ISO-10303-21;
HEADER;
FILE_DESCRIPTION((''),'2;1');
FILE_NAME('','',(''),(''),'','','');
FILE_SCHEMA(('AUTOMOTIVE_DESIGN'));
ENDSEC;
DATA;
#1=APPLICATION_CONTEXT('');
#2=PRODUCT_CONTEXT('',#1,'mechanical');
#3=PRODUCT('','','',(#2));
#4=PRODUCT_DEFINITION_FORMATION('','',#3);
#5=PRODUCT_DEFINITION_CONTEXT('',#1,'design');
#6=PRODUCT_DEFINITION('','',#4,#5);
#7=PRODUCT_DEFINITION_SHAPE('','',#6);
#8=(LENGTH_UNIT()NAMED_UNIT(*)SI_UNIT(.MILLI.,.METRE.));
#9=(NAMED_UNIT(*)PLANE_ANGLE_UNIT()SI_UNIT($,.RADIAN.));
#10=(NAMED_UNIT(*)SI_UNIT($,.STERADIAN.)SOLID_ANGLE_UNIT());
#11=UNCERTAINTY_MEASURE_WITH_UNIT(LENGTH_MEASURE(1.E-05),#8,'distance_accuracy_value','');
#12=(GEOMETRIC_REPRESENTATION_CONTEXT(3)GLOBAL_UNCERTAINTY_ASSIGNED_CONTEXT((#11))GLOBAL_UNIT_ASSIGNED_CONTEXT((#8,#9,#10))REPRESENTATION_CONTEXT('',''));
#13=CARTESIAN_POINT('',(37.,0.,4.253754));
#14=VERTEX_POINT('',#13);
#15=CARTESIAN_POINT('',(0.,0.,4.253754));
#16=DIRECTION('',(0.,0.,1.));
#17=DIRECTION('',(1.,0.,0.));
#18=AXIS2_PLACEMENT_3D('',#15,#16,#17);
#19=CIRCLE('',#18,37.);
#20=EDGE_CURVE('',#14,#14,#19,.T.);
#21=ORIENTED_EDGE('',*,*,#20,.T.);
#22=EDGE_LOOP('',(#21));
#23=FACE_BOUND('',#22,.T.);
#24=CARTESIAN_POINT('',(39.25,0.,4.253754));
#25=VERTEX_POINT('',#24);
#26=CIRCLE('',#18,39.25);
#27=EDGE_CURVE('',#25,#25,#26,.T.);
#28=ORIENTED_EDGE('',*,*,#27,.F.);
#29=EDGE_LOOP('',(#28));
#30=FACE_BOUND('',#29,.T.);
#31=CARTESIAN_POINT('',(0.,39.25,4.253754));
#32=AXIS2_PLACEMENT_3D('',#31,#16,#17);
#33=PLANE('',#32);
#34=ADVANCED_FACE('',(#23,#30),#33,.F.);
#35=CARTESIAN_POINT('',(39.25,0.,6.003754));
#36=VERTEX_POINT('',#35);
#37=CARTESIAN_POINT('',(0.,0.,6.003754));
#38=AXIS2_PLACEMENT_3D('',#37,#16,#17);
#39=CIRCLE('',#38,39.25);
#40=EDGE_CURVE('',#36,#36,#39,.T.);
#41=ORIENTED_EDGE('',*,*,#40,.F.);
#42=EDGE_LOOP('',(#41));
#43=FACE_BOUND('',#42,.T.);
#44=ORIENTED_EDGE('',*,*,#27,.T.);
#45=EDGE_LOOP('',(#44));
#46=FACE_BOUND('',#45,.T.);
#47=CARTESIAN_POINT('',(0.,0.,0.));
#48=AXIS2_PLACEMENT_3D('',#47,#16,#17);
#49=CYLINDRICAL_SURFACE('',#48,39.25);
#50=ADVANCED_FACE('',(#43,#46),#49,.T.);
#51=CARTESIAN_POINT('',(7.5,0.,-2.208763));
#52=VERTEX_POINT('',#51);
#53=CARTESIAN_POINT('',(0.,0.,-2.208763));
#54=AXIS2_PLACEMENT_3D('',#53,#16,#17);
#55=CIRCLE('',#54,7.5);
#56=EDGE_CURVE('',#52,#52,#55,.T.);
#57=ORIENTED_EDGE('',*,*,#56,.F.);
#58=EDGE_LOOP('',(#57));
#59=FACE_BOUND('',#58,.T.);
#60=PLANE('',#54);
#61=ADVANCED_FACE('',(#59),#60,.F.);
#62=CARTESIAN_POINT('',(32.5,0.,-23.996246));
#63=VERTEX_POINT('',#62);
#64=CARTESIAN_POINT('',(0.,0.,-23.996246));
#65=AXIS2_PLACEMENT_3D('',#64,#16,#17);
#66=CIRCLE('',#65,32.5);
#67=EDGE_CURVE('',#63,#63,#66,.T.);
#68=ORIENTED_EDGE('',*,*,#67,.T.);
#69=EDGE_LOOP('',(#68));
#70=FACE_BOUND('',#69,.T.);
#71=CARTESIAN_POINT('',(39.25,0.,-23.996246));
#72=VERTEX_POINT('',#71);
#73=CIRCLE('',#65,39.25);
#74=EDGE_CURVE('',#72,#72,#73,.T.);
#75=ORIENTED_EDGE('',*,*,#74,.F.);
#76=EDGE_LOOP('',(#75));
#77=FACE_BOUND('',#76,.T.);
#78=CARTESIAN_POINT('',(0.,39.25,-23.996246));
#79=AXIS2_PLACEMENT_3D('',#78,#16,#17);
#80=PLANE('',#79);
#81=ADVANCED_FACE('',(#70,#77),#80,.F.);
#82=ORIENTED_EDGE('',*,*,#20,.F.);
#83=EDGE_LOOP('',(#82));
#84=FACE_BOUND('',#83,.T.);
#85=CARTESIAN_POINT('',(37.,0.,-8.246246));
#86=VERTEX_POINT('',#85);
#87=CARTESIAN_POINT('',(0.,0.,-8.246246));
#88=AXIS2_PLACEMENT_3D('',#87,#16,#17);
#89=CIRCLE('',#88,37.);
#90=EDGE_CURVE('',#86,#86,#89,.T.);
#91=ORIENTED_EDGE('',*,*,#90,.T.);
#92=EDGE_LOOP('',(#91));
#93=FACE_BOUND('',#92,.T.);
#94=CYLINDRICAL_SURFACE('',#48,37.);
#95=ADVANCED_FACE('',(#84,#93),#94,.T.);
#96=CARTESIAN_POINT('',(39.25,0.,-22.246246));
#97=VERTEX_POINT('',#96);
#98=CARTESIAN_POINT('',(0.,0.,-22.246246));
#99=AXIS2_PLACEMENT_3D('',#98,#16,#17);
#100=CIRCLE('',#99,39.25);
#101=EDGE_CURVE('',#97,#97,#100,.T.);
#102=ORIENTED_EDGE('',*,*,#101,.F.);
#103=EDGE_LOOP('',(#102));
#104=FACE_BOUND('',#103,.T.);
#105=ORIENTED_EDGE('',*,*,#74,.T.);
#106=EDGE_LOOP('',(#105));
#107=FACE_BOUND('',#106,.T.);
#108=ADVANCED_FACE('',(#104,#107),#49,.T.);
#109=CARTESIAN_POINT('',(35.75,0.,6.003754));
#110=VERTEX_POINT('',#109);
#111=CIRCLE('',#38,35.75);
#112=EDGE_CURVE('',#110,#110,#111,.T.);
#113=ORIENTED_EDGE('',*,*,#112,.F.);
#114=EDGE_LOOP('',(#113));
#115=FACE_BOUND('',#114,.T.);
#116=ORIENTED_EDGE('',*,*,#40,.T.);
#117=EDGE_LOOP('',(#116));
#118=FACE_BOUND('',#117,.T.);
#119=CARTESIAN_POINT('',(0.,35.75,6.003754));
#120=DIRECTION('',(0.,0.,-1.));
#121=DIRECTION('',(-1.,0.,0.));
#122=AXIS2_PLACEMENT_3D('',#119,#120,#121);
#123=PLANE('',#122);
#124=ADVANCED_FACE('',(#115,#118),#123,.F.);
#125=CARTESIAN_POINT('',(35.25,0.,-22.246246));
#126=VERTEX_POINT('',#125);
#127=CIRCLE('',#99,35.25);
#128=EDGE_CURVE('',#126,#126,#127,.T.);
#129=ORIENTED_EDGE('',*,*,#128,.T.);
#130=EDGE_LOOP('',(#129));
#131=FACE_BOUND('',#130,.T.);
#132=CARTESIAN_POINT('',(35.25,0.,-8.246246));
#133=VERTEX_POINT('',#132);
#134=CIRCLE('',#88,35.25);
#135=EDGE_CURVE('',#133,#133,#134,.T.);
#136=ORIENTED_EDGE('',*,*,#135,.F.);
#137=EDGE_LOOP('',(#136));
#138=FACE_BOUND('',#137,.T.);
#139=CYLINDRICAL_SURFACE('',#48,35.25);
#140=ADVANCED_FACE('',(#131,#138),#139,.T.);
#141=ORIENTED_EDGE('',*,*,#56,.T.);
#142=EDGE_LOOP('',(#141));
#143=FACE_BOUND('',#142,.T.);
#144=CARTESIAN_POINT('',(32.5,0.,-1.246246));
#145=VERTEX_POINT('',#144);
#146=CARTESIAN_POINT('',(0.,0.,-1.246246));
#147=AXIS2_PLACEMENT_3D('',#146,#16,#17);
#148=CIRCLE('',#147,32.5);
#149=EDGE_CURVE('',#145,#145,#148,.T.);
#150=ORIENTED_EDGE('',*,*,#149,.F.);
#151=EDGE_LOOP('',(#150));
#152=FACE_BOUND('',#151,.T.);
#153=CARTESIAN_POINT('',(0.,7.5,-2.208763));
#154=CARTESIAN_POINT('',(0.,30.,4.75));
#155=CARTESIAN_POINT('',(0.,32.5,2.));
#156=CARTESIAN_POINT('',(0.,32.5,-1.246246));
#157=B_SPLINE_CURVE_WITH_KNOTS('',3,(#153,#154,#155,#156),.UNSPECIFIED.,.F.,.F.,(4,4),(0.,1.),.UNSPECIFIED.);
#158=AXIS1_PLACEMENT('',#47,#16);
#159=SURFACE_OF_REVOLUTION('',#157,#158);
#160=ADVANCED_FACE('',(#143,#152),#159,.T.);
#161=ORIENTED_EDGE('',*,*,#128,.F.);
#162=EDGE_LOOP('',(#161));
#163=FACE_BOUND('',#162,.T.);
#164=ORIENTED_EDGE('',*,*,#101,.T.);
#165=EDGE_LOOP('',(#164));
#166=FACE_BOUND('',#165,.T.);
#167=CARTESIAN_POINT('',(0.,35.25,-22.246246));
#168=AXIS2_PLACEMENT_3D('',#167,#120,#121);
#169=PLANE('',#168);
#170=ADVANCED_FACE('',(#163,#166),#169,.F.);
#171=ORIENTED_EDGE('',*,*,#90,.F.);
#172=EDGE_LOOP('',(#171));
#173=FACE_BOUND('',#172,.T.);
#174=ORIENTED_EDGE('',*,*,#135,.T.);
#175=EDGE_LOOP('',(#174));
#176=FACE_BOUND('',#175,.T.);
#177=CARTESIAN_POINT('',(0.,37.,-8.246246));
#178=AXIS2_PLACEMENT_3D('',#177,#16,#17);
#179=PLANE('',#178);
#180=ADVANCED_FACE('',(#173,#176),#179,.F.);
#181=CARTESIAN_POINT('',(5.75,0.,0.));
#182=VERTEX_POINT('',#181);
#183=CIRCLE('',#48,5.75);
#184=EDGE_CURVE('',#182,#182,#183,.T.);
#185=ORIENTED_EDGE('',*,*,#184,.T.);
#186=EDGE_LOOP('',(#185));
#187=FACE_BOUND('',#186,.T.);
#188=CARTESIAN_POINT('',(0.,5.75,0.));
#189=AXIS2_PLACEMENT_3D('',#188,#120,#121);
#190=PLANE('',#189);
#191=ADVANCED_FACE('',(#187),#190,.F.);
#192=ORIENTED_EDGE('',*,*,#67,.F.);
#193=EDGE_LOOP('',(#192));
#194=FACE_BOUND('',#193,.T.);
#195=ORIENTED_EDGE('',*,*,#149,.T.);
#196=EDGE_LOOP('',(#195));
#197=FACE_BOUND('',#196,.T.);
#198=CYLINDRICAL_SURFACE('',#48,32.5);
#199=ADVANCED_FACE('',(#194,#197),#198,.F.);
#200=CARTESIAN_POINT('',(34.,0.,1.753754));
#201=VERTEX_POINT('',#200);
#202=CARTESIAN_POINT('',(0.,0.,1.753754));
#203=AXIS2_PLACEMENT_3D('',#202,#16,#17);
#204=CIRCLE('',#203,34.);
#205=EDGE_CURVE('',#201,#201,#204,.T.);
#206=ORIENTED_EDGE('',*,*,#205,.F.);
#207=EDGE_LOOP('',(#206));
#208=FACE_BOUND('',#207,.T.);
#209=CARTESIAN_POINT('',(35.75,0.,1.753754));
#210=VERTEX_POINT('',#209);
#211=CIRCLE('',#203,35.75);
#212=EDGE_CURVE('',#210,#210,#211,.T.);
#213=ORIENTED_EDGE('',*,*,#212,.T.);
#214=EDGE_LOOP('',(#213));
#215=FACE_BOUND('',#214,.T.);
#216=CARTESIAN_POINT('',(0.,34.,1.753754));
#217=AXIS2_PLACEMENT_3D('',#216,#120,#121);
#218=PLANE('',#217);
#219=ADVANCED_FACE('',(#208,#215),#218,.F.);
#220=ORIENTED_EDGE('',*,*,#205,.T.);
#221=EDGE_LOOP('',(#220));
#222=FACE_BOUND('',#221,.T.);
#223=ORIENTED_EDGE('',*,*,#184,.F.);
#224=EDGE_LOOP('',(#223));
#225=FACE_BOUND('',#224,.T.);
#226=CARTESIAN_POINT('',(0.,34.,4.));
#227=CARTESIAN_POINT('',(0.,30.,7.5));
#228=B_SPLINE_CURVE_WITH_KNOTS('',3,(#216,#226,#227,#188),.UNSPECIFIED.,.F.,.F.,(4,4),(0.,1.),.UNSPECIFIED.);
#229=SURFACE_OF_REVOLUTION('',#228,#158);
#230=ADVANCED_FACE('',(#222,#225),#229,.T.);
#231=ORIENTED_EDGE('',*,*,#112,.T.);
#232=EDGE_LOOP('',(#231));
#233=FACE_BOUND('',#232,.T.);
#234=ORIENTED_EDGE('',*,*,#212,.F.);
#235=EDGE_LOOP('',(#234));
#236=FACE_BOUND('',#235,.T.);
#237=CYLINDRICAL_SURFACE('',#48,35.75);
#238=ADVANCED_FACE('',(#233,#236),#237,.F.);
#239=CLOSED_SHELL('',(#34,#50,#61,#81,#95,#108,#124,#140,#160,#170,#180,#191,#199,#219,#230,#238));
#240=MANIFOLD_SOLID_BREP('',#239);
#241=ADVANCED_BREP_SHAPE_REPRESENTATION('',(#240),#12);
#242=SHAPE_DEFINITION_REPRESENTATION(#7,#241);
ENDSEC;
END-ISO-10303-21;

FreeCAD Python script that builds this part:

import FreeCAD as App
import Part
import Sketcher

doc = App.newDocument("Part")
body = doc.addObject("PartDesign::Body", "Body")

# Sketch on YZ plane
sketch1 = doc.addObject("Sketcher::SketchObject", "Sketch")
body.addObject(sketch1)
sketch1.AttachmentSupport = (doc.YZ_Plane, [""])
sketch1.MapMode = "FlatFace"
sketch1.addGeometry([
    Part.LineSegment(App.Vector(0, 0, 0), App.Vector(0, -2.208763, 0)),  # 0
    Part.LineSegment(App.Vector(0, -2.208763, 0), App.Vector(7.5, -2.208763, 0)),  # 1
    Part.BSplineCurve([App.Vector(7.5, -2.208763, 0), App.Vector(30, 4.75, 0), App.Vector(32.5, 2, 0), App.Vector(32.5, -1.246246, 0)], [4, 4], [0, 1], False, 3, [1, 1, 1, 1], False),  # 2
    Part.LineSegment(App.Vector(32.5, -1.246246, 0), App.Vector(32.5, -23.996246, 0)),  # 3
    Part.LineSegment(App.Vector(32.5, -23.996246, 0), App.Vector(39.25, -23.996246, 0)),  # 4
    Part.LineSegment(App.Vector(39.25, -23.996246, 0), App.Vector(39.25, -22.246246, 0)),  # 5
    Part.LineSegment(App.Vector(39.25, -22.246246, 0), App.Vector(35.25, -22.246246, 0)),  # 6
    Part.LineSegment(App.Vector(35.25, -22.246246, 0), App.Vector(35.25, -8.246246, 0)),  # 7
    Part.LineSegment(App.Vector(35.25, -8.246246, 0), App.Vector(37, -8.246246, 0)),  # 8
    Part.LineSegment(App.Vector(37, -8.246246, 0), App.Vector(37, 4.253754, 0)),  # 9
    Part.LineSegment(App.Vector(37, 4.253754, 0), App.Vector(39.25, 4.253754, 0)),  # 10
    Part.LineSegment(App.Vector(39.25, 4.253754, 0), App.Vector(39.25, 6.003754, 0)),  # 11
    Part.LineSegment(App.Vector(39.25, 6.003754, 0), App.Vector(35.75, 6.003754, 0)),  # 12
    Part.LineSegment(App.Vector(35.75, 6.003754, 0), App.Vector(35.75, 1.753754, 0)),  # 13
    Part.LineSegment(App.Vector(35.75, 1.753754, 0), App.Vector(34, 1.753754, 0)),  # 14
    Part.BSplineCurve([App.Vector(5.75, 0, 0), App.Vector(30, 7.5, 0), App.Vector(34, 4, 0), App.Vector(34, 1.753754, 0)], [4, 4], [0, 1], False, 3, [1, 1, 1, 1], False),  # 15
    Part.LineSegment(App.Vector(5.75, 0, 0), App.Vector(0, 0, 0)),  # 16
], False)
sketch1.addConstraint([
    Sketcher.Constraint("Block", 2),
    Sketcher.Constraint("Block", 15),
    Sketcher.Constraint("Coincident", 0, 2, 1, 1),
    Sketcher.Constraint("Coincident", 1, 2, 2, 1),
    Sketcher.Constraint("Coincident", 2, 2, 3, 1),
    Sketcher.Constraint("Coincident", 3, 2, 4, 1),
    Sketcher.Constraint("Coincident", 4, 2, 5, 1),
    Sketcher.Constraint("Coincident", 5, 2, 6, 1),
    Sketcher.Constraint("Coincident", 6, 2, 7, 1),
    Sketcher.Constraint("Coincident", 7, 2, 8, 1),
    Sketcher.Constraint("Coincident", 8, 2, 9, 1),
    Sketcher.Constraint("Coincident", 9, 2, 10, 1),
    Sketcher.Constraint("Coincident", 10, 2, 11, 1),
    Sketcher.Constraint("Coincident", 11, 2, 12, 1),
    Sketcher.Constraint("Coincident", 12, 2, 13, 1),
    Sketcher.Constraint("Coincident", 13, 2, 14, 1),
    Sketcher.Constraint("Coincident", 14, 2, 15, 2),
    Sketcher.Constraint("Coincident", 15, 1, 16, 1),
    Sketcher.Constraint("Coincident", 16, 2, 0, 1),
    Sketcher.Constraint("Vertical", 0),
    Sketcher.Constraint("Horizontal", 1),
    Sketcher.Constraint("Vertical", 3),
    Sketcher.Constraint("Horizontal", 4),
    Sketcher.Constraint("Vertical", 5),
    Sketcher.Constraint("Horizontal", 6),
    Sketcher.Constraint("Vertical", 7),
    Sketcher.Constraint("Horizontal", 8),
    Sketcher.Constraint("Vertical", 9),
    Sketcher.Constraint("Horizontal", 10),
    Sketcher.Constraint("Vertical", 11),
    Sketcher.Constraint("Horizontal", 12),
    Sketcher.Constraint("Vertical", 13),
    Sketcher.Constraint("Horizontal", 14),
    Sketcher.Constraint("Horizontal", 16),
    Sketcher.Constraint("PointOnObject", 0, 2, -2),
    Sketcher.Constraint("Vertical", 5, 2, 10, 2),
    Sketcher.Constraint("Equal", 8, 14),
    Sketcher.Constraint("Equal", 14, 5),
    Sketcher.Constraint("Equal", 5, 11),
    Sketcher.Constraint("DistanceX", 6, 2, 6, 1, 4.0),
    Sketcher.Constraint("DistanceY", 7, 1, 7, 2, 14.0),
    Sketcher.Constraint("DistanceX", 12, 2, 12, 1, 3.5),
    Sketcher.Constraint("DistanceY", 9, 1, 9, 2, 12.5),
    Sketcher.Constraint("DistanceX", -1, 1, 8, 2, 37.0),
    Sketcher.Constraint("DistanceY", 7, 2, 13, 2, 10.0),
])
revolution = doc.addObject("PartDesign::Revolution", "Revolution")
body.addObject(revolution)
revolution.Profile = sketch1
revolution.ReferenceAxis = (sketch1, ["V_Axis"])
revolution.Angle = 360

doc.recompute()
